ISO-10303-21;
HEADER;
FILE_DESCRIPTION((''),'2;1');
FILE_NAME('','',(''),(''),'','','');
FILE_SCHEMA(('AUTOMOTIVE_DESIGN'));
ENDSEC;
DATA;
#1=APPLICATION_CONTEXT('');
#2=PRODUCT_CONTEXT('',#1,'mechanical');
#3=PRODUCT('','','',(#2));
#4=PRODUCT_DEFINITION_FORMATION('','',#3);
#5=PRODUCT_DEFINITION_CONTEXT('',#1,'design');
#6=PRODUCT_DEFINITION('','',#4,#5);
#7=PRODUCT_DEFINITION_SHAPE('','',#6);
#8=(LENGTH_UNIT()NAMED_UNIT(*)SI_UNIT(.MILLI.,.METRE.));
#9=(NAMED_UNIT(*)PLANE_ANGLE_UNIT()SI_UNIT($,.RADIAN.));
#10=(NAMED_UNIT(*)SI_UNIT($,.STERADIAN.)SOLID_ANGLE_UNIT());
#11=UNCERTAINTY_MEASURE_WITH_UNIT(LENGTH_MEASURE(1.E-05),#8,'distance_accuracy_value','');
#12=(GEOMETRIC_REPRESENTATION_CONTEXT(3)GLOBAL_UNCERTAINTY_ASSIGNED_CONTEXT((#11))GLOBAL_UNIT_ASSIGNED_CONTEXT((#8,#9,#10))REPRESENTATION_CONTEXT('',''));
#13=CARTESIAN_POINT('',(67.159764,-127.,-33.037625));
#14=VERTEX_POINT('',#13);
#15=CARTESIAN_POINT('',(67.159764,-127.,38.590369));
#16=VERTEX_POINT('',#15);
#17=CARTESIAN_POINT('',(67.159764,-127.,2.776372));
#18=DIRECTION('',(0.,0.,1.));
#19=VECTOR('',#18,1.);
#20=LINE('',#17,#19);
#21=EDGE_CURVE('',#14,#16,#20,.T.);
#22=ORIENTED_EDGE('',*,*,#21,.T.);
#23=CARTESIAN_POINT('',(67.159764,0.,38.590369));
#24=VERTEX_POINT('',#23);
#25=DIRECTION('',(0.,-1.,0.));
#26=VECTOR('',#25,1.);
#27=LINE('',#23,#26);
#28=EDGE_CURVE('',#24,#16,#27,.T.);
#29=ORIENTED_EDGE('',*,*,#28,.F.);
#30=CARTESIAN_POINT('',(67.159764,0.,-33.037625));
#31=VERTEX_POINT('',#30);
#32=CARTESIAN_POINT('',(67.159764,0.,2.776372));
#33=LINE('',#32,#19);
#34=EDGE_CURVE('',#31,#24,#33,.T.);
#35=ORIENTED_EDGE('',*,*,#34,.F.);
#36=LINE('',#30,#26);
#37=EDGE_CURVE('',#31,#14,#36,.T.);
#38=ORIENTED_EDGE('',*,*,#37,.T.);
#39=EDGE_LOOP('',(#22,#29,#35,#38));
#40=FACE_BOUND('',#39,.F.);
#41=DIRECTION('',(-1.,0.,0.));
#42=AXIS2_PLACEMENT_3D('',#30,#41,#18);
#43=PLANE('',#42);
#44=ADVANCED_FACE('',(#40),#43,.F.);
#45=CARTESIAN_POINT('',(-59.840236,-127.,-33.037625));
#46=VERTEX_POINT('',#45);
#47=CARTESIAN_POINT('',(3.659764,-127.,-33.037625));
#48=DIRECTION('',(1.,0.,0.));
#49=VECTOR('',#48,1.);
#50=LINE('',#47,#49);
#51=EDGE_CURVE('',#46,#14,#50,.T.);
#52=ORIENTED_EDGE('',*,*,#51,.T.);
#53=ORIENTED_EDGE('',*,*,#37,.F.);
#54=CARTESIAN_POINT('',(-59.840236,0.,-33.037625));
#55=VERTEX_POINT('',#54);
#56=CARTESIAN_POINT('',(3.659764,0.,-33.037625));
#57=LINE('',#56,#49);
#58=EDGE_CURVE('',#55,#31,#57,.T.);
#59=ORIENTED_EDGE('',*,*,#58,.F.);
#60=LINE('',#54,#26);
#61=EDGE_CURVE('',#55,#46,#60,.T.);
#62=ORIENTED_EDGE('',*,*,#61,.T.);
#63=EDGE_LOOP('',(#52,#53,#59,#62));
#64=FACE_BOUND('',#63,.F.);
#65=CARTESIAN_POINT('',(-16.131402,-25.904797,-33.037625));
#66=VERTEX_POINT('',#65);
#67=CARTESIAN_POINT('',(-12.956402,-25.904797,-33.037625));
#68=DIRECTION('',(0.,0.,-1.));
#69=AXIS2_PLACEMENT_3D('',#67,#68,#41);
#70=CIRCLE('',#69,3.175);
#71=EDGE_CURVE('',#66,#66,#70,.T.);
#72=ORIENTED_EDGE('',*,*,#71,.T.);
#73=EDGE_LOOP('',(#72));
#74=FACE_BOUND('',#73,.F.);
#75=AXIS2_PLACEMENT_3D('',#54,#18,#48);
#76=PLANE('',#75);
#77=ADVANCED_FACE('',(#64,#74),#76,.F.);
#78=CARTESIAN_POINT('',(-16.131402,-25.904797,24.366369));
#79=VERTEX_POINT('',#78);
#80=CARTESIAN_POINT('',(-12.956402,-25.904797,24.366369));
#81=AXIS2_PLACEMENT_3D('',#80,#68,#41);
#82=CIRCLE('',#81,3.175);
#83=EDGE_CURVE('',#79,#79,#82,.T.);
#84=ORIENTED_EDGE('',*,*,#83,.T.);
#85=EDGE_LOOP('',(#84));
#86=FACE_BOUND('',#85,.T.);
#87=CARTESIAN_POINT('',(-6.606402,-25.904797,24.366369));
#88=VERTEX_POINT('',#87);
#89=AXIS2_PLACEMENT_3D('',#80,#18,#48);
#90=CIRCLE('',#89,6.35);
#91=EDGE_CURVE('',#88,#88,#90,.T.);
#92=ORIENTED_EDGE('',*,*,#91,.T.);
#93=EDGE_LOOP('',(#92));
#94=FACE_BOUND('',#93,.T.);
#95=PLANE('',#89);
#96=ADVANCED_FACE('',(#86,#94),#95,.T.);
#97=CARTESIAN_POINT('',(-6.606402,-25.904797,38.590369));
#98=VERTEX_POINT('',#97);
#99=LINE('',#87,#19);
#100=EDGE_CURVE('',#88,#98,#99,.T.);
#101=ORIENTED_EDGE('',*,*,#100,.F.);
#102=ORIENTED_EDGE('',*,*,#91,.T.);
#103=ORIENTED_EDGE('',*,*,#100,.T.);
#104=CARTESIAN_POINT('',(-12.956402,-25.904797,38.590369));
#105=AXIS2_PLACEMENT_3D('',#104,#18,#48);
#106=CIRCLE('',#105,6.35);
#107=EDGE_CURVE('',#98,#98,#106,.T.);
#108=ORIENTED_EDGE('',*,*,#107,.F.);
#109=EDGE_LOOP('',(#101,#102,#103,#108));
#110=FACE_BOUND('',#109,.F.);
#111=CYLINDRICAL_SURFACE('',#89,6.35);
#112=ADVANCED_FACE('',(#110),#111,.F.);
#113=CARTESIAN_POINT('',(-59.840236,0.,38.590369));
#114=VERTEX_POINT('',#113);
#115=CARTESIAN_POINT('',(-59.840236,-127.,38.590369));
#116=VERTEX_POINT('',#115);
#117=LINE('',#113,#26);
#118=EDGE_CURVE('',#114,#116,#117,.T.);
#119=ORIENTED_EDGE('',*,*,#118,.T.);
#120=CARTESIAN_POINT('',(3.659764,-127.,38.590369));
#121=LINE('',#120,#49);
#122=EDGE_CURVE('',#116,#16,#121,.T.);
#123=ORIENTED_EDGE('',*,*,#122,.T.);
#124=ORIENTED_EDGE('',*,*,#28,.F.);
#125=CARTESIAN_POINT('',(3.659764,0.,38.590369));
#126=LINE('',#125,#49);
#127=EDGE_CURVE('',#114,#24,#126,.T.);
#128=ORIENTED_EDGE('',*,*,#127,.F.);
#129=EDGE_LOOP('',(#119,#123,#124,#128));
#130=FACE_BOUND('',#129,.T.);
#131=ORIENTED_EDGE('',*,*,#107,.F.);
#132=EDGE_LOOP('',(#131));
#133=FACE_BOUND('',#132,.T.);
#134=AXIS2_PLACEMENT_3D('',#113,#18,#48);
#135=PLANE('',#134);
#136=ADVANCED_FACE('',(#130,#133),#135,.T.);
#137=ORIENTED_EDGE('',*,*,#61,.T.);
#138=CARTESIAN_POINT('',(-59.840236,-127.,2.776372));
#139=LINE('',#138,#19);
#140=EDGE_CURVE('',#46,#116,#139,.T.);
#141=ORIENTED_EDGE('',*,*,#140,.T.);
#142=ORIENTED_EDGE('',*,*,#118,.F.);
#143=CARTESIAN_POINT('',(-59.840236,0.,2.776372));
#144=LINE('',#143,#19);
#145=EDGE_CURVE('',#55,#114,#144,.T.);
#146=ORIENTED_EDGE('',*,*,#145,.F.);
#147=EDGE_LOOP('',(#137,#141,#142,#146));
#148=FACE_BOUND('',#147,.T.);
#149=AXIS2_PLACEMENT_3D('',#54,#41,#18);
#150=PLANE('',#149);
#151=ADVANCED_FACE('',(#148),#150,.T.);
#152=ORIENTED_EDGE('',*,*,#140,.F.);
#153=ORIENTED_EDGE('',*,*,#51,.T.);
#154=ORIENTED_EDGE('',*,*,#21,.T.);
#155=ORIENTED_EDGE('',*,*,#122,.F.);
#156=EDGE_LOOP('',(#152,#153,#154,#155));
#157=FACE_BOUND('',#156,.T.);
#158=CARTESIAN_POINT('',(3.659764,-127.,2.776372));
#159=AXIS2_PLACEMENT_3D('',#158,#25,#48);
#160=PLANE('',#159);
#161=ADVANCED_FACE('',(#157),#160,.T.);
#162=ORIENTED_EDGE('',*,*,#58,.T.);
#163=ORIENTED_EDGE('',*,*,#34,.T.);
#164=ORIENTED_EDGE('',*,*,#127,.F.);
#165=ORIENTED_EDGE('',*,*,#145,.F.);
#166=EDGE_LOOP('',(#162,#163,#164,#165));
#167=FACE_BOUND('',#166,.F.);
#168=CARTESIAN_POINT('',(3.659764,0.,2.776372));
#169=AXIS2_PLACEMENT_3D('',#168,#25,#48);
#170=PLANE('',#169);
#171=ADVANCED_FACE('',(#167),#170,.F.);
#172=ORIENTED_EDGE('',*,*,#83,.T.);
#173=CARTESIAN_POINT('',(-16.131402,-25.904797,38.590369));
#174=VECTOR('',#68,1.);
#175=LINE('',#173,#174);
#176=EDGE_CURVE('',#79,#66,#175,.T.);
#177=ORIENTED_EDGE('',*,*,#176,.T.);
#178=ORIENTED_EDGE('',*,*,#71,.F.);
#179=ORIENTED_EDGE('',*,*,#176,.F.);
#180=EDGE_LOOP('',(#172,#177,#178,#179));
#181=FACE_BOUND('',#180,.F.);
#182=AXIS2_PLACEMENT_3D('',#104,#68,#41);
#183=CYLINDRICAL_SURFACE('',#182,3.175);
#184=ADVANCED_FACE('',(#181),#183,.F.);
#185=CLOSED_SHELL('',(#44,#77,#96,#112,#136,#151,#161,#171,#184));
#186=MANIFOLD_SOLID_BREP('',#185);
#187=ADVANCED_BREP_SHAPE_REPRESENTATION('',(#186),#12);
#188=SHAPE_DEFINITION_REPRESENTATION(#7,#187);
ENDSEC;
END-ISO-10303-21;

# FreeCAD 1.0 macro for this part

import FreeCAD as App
import Part
import Sketcher

V = App.Vector
Q = App.Units.Quantity

doc = App.newDocument("Part")
body = doc.addObject("PartDesign::Body", "Body")

sketch1 = doc.addObject("Sketcher::SketchObject", "Sketch")
body.addObject(sketch1)
sketch1.AttachmentSupport = (doc.XZ_Plane, [""])
sketch1.MapMode = "FlatFace"
sketch1.addGeometry([
    Part.LineSegment(V(-60, 39, 0), V(-60, -33, 0)),
    Part.LineSegment(V(-60, -33, 0), V(67, -33, 0)),
    Part.LineSegment(V(67, -33, 0), V(67, 39, 0)),
    Part.LineSegment(V(67, 39, 0), V(-60, 39, 0)),
], False)
sketch1.addConstraint([
    Sketcher.Constraint("Coincident", 0, 2, 1, 1),
    Sketcher.Constraint("Coincident", 1, 2, 2, 1),
    Sketcher.Constraint("Coincident", 2, 2, 3, 1),
    Sketcher.Constraint("Coincident", 3, 2, 0, 1),
    Sketcher.Constraint("Vertical", 0),
    Sketcher.Constraint("Horizontal", 1),
    Sketcher.Constraint("Vertical", 2),
    Sketcher.Constraint("Horizontal", 3),
    Sketcher.Constraint("DistanceX", 1, 1, 1, 2, Q("5 in")),
    Sketcher.Constraint("DistanceY", 0, 2, 0, 1, 71.627994),
    Sketcher.Constraint("DistanceY", -1, 1, 2, 2, 38.590369),
    Sketcher.Constraint("DistanceX", 0, 2, -1, 1, 59.840236),
])
pad1 = doc.addObject("PartDesign::Pad", "Pad")
body.addObject(pad1)
pad1.Profile = sketch1
pad1.Length = Q("5 in")

sketch2 = doc.addObject("Sketcher::SketchObject", "Sketch001")
body.addObject(sketch2)
sketch2.AttachmentSupport = (doc.XY_Plane, [""])
sketch2.MapMode = "FlatFace"
sketch2.AttachmentOffset = App.Placement(V(0, 0, 38.590369), App.Rotation())
sketch2.addGeometry(Part.Circle(V(-13, -25.9, 0), V(0, 0, 1), 3.2), False)
sketch2.addConstraint([
    Sketcher.Constraint("Diameter", 0, Q("0.25 in")),
    Sketcher.Constraint("DistanceX", 0, 3, -1, 1, 12.956402),
    Sketcher.Constraint("DistanceY", 0, 3, -1, 1, 25.904797),
])
doc.recompute()
hole = doc.addObject("PartDesign::Hole", "Hole")
body.addObject(hole)
hole.Profile = sketch2
hole.ThreadType = "None"
hole.Diameter = Q("0.25 in")
hole.DepthType = "ThroughAll"
hole.HoleCutType = "Counterbore"
hole.HoleCutDiameter = Q("0.5 in")
hole.HoleCutDepth = Q("0.56 in")

doc.recompute()
